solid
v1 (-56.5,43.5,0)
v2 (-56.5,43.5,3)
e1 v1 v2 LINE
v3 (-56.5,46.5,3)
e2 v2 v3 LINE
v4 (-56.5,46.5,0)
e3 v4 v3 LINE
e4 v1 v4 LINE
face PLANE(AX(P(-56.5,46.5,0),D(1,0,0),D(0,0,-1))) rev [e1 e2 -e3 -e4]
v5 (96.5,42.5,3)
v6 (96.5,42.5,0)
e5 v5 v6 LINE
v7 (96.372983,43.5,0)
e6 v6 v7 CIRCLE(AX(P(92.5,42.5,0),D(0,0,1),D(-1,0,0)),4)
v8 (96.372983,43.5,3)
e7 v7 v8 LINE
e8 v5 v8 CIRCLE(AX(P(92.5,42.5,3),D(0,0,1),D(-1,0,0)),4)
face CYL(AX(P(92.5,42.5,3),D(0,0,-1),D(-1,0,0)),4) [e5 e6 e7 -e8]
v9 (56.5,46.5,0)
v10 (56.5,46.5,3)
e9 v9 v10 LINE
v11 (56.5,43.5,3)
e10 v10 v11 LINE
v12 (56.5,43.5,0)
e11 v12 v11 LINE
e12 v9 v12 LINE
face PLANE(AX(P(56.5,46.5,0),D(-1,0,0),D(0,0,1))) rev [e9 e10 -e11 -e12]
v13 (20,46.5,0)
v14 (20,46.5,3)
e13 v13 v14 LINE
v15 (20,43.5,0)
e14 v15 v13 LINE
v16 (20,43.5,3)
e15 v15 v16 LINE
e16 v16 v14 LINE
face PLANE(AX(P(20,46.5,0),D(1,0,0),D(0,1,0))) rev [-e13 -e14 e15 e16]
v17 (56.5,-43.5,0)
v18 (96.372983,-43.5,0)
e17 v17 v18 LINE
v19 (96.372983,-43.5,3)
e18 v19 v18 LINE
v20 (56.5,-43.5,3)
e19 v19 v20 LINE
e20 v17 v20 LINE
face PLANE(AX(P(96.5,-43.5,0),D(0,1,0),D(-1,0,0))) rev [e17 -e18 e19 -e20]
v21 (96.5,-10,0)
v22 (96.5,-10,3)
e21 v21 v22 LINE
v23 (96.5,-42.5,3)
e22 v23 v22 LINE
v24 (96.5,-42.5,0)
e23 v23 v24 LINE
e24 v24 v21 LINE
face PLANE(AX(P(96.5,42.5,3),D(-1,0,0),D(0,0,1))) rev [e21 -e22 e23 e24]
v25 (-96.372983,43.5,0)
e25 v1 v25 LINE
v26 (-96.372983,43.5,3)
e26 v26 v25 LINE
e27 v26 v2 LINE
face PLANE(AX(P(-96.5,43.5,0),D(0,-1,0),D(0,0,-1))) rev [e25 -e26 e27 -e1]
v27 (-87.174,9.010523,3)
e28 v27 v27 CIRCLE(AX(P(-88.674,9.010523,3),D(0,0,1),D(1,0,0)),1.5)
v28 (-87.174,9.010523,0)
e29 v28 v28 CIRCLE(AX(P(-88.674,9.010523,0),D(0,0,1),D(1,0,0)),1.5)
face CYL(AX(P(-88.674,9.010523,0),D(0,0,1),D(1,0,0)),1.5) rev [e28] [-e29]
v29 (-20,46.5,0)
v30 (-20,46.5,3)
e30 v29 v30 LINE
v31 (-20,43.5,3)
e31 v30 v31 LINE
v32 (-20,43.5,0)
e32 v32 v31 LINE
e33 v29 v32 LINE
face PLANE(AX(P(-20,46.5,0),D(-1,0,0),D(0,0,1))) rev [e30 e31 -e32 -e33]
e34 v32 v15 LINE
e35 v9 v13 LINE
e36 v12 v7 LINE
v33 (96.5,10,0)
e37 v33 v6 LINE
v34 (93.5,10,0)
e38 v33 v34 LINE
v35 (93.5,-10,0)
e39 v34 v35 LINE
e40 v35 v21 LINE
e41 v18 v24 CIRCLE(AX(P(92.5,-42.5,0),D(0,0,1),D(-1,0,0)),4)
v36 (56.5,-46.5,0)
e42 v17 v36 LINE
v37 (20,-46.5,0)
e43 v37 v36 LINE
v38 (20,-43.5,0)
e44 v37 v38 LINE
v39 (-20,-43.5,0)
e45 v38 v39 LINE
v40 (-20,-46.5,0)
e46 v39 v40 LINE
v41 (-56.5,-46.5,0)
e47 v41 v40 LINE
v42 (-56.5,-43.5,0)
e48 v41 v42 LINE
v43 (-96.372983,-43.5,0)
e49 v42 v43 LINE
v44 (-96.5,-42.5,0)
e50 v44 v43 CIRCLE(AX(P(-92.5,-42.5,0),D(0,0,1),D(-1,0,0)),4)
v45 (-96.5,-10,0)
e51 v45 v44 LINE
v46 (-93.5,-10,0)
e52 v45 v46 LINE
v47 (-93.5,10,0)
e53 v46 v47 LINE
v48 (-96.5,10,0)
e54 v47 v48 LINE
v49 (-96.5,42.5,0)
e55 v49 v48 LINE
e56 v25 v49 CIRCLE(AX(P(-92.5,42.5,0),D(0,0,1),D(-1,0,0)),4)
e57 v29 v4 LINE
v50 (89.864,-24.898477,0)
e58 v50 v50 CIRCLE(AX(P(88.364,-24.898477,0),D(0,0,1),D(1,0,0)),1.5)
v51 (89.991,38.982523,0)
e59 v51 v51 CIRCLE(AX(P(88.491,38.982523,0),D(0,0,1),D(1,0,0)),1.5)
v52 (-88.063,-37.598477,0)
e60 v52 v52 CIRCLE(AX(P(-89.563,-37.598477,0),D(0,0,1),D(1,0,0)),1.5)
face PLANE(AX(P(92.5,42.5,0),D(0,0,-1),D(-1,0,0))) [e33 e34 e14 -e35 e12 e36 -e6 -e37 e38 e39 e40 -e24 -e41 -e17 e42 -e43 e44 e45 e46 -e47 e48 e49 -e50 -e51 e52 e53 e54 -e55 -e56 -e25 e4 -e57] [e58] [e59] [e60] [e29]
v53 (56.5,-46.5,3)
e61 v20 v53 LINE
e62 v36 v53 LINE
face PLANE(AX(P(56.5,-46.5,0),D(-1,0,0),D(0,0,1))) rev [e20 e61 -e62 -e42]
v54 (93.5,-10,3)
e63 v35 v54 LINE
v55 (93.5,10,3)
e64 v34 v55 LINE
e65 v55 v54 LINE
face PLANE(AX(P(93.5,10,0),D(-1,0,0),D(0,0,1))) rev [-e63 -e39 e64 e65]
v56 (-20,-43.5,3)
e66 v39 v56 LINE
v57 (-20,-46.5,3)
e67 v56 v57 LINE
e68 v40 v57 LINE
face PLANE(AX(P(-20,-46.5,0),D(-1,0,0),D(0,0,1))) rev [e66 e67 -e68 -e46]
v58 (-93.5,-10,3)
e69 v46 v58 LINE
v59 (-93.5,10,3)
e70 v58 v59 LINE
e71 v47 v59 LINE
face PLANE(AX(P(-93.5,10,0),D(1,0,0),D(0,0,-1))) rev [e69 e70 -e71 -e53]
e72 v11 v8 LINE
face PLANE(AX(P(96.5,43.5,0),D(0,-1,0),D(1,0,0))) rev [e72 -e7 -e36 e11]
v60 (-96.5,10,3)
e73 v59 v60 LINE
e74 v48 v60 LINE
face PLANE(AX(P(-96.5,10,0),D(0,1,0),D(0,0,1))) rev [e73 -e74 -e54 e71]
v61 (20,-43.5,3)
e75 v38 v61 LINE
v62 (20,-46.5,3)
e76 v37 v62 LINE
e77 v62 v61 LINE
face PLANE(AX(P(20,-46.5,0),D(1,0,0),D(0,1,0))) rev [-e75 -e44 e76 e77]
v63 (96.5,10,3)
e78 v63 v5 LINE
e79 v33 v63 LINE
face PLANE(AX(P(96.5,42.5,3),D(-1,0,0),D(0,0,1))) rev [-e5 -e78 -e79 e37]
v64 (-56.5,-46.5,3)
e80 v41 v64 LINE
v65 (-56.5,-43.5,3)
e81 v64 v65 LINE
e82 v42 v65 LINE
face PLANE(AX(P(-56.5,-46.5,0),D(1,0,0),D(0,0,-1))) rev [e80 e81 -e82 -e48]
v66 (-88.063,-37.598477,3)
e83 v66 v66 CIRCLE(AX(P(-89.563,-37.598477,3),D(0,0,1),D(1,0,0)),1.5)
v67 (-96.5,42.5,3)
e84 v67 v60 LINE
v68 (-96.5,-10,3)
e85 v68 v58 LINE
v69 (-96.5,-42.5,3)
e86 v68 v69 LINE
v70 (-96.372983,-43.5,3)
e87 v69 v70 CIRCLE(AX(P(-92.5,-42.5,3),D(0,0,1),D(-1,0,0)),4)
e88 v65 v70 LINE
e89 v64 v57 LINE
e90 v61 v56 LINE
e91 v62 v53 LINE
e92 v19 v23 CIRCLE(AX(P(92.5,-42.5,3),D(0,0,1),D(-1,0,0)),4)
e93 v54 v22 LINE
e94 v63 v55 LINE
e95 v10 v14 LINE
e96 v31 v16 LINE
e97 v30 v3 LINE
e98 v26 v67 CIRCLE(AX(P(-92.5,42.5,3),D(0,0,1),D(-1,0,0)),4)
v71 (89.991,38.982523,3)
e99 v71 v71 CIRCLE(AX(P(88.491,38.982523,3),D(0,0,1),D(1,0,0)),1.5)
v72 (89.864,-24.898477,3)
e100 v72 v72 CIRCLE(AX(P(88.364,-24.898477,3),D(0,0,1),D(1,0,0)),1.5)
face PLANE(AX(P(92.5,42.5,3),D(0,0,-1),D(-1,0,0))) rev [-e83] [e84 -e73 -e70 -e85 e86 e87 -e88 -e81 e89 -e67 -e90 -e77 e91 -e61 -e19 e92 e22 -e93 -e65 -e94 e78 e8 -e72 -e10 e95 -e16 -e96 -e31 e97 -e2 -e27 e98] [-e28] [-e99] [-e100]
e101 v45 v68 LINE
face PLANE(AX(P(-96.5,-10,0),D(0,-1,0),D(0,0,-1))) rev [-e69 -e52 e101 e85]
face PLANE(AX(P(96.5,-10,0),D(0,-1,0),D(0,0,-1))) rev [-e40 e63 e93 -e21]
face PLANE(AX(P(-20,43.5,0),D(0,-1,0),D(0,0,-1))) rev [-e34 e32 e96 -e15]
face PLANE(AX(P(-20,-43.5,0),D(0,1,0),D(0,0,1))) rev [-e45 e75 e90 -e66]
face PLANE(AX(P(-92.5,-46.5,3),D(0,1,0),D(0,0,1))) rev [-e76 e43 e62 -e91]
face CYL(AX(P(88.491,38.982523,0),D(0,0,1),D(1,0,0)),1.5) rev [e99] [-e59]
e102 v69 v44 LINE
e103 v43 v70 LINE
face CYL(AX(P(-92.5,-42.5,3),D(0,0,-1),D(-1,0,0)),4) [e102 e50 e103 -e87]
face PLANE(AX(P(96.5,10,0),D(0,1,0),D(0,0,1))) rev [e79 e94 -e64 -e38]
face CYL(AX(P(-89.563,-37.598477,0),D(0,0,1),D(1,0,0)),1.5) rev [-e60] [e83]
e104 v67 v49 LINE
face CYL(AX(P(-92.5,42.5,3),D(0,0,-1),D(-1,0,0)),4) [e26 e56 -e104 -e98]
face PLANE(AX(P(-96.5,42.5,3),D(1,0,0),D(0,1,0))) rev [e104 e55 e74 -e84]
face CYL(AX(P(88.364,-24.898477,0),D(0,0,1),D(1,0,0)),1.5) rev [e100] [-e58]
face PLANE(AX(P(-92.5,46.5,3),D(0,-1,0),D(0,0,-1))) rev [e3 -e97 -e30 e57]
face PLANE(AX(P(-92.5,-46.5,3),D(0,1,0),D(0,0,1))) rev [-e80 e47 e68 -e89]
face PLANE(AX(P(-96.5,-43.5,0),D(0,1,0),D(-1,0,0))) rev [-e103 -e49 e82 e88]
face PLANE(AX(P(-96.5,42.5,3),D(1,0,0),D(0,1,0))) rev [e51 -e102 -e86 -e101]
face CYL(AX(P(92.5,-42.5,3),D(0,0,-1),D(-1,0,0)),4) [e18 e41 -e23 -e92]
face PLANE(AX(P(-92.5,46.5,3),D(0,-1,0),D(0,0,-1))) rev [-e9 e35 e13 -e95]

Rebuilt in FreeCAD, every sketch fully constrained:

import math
import FreeCAD as App
import Part
import Sketcher
from FreeCAD import Vector
Q = App.Units.Quantity


def add_polygon(sketch, points):
    """Adds a closed chain of lines whose ends are joined by coincident constraints."""
    first, n = sketch.GeometryCount, len(points)
    for a, b in zip(points, points[1:] + points[:1]):
        sketch.addGeometry(Part.LineSegment(App.Vector(*a, 0), App.Vector(*b, 0)), False)
    for i in range(n):
        sketch.addConstraint(Sketcher.Constraint("Coincident", first + i, 2, first + (i + 1) % n, 1))

doc = App.newDocument("Part")
params = doc.addObject("Spreadsheet::Sheet", "Params")
for row, (alias, value) in enumerate([
    ("sketch1_radius", "4 mm"),
    ("sketch1_width", "185 mm"),
    ("sketch1_height", "85 mm"),
    ("pad1_length", "3 mm"),
    ("sketch2_diameter", "3 mm"),
    ("sketch2_width", "3 mm"),
    ("sketch2_width2", "40 mm"),
    ("sketch2_height", "20 mm"),
    ("pocket1_length", "3 mm"),
], start=1):
    params.set(f"A{row}", alias)
    params.set(f"B{row}", "=" + value)
    params.setAlias(f"B{row}", alias)

body = doc.addObject("PartDesign::Body", "Body")

# Sketch on XY plane
sketch1 = doc.addObject("Sketcher::SketchObject", "Sketch")
body.addObject(sketch1)
sketch1.AttachmentSupport = (doc.XY_Plane, [""])
sketch1.MapMode = "FlatFace"
sketch1.addGeometry([
    Part.LineSegment(Vector(92.5, 46.5, 0), Vector(-92.5, 46.5, 0)),  # 0
    Part.ArcOfCircle(Part.Circle(Vector(-92.5, 42.5, 0), Vector(0, 0, 1), 4), math.radians(90), math.radians(180)),  # 1
    Part.LineSegment(Vector(-96.5, 42.5, 0), Vector(-96.5, -42.5, 0)),  # 2
    Part.ArcOfCircle(Part.Circle(Vector(-92.5, -42.5, 0), Vector(0, 0, 1), 4), math.radians(180), math.radians(270)),  # 3
    Part.LineSegment(Vector(-92.5, -46.5, 0), Vector(92.5, -46.5, 0)),  # 4
    Part.ArcOfCircle(Part.Circle(Vector(92.5, -42.5, 0), Vector(0, 0, 1), 4), math.radians(-90), math.radians(0)),  # 5
    Part.LineSegment(Vector(96.5, -42.5, 0), Vector(96.5, 42.5, 0)),  # 6
    Part.ArcOfCircle(Part.Circle(Vector(92.5, 42.5, 0), Vector(0, 0, 1), 4), math.radians(0), math.radians(90)),  # 7
], False)
sketch1.addConstraint([
    Sketcher.Constraint("Tangent", 0, 2, 1, 1),
    Sketcher.Constraint("Tangent", 1, 2, 2, 1),
    Sketcher.Constraint("Tangent", 2, 2, 3, 1),
    Sketcher.Constraint("Tangent", 3, 2, 4, 1),
    Sketcher.Constraint("Tangent", 4, 2, 5, 1),
    Sketcher.Constraint("Tangent", 5, 2, 6, 1),
    Sketcher.Constraint("Tangent", 6, 2, 7, 1),
    Sketcher.Constraint("Tangent", 7, 2, 0, 1),
    Sketcher.Constraint("Horizontal", 0),
    Sketcher.Constraint("Vertical", 2),
    Sketcher.Constraint("Horizontal", 4),
    Sketcher.Constraint("Vertical", 6),
    Sketcher.Constraint("Equal", 1, 3),
    Sketcher.Constraint("Equal", 3, 5),
    Sketcher.Constraint("Equal", 5, 7),
    Sketcher.Constraint("Symmetric", 1, 3, 5, 3, -1, 1),
    Sketcher.Constraint("Radius", 1, Q("4 mm")),
    Sketcher.Constraint("DistanceX", 0, 2, 0, 1, Q("185 mm")),
    Sketcher.Constraint("DistanceY", 2, 2, 2, 1, Q("85 mm")),
])
sketch1.setExpression("Constraints[16]", "Params.sketch1_radius")
sketch1.setExpression("Constraints[17]", "Params.sketch1_width")
sketch1.setExpression("Constraints[18]", "Params.sketch1_height")
pad1 = doc.addObject("PartDesign::Pad", "Pad")
body.addObject(pad1)
pad1.Profile = sketch1
pad1.setExpression("Length", "Params.pad1_length")

# Sketch on XY plane
sketch2 = doc.addObject("Sketcher::SketchObject", "Sketch001")
body.addObject(sketch2)
sketch2.AttachmentSupport = (doc.XY_Plane, [""])
sketch2.MapMode = "FlatFace"
sketch2.AttachmentOffset = App.Placement(Vector(0, 0, 3), App.Rotation())
sketch2.addGeometry(Part.Circle(Vector(-88.7, 9, 0), Vector(0, 0, 1), 1.5), False)  # 0
sketch2.addGeometry(Part.Circle(Vector(-89.6, -37.6, 0), Vector(0, 0, 1), 1.5), False)  # 1
sketch2.addGeometry(Part.Circle(Vector(88.4, -24.9, 0), Vector(0, 0, 1), 1.5), False)  # 2
sketch2.addGeometry(Part.Circle(Vector(88.5, 39, 0), Vector(0, 0, 1), 1.5), False)  # 3
add_polygon(sketch2, [(-96.5, 10), (-96.5, -10), (-93.5, -10), (-93.5, 10)])  # lines 4-7
add_polygon(sketch2, [(93.5, 10), (93.5, -10), (96.5, -10), (96.5, 10)])  # lines 8-11
add_polygon(sketch2, [(56.5, 46.5), (56.5, 43.5), (96.5, 43.5), (96.5, 46.5)])  # lines 12-15
add_polygon(sketch2, [(-96.5, 46.5), (-96.5, 43.5), (-56.5, 43.5), (-56.5, 46.5)])  # lines 16-19
add_polygon(sketch2, [(56.5, -43.5), (56.5, -46.5), (96.5, -46.5), (96.5, -43.5)])  # lines 20-23
add_polygon(sketch2, [(-20, 46.5), (-20, 43.5), (20, 43.5), (20, 46.5)])  # lines 24-27
add_polygon(sketch2, [(-20, -43.5), (-20, -46.5), (20, -46.5), (20, -43.5)])  # lines 28-31
add_polygon(sketch2, [(-96.5, -43.5), (-96.5, -46.5), (-56.5, -46.5), (-56.5, -43.5)])  # lines 32-35
sketch2.addConstraint([
    Sketcher.Constraint("Vertical", 4),
    Sketcher.Constraint("Horizontal", 5),
    Sketcher.Constraint("Vertical", 6),
    Sketcher.Constraint("Horizontal", 7),
    Sketcher.Constraint("Vertical", 8),
    Sketcher.Constraint("Horizontal", 9),
    Sketcher.Constraint("Vertical", 10),
    Sketcher.Constraint("Horizontal", 11),
    Sketcher.Constraint("Vertical", 12),
    Sketcher.Constraint("Horizontal", 13),
    Sketcher.Constraint("Vertical", 14),
    Sketcher.Constraint("Horizontal", 15),
    Sketcher.Constraint("Vertical", 16),
    Sketcher.Constraint("Horizontal", 17),
    Sketcher.Constraint("Vertical", 18),
    Sketcher.Constraint("Horizontal", 19),
    Sketcher.Constraint("Vertical", 20),
    Sketcher.Constraint("Horizontal", 21),
    Sketcher.Constraint("Vertical", 22),
    Sketcher.Constraint("Horizontal", 23),
    Sketcher.Constraint("Vertical", 24),
    Sketcher.Constraint("Horizontal", 25),
    Sketcher.Constraint("Vertical", 26),
    Sketcher.Constraint("Horizontal", 27),
    Sketcher.Constraint("Vertical", 28),
    Sketcher.Constraint("Horizontal", 29),
    Sketcher.Constraint("Vertical", 30),
    Sketcher.Constraint("Horizontal", 31),
    Sketcher.Constraint("Vertical", 32),
    Sketcher.Constraint("Horizontal", 33),
    Sketcher.Constraint("Vertical", 34),
    Sketcher.Constraint("Horizontal", 35),
    Sketcher.Constraint("Equal", 0, 1),
    Sketcher.Constraint("Equal", 1, 2),
    Sketcher.Constraint("Equal", 2, 3),
    Sketcher.Constraint("Symmetric", 6, 2, 8, 2, -1, 1),
    Sketcher.Constraint("Symmetric", 4, 2, 10, 2, -1, 1),
    Sketcher.Constraint("Symmetric", 18, 2, 20, 2, -1, 1),
    Sketcher.Constraint("Symmetric", 16, 2, 22, 2, -1, 1),
    Sketcher.Constraint("Symmetric", 26, 2, 28, 2, -1, 1),
    Sketcher.Constraint("Symmetric", 24, 2, 30, 2, -1, 1),
    Sketcher.Constraint("Symmetric", 14, 2, 32, 2, -1, 1),
    Sketcher.Constraint("Symmetric", 12, 2, 34, 2, -1, 1),
    Sketcher.Constraint("Symmetric", 13, 2, 16, 2, -2),
    Sketcher.Constraint("Symmetric", 15, 2, 18, 2, -2),
    Sketcher.Constraint("Horizontal", 5, 2, 8, 2),
    Sketcher.Constraint("Horizontal", 17, 2, 24, 2),
    Sketcher.Constraint("Horizontal", 19, 2, 26, 2),
    Sketcher.Constraint("Vertical", 10, 2, 13, 2),
    Sketcher.Constraint("Vertical", 27, 2, 28, 2),
    Sketcher.Constraint("Equal", 23, 25),
    Sketcher.Constraint("Equal", 11, 12),
    Sketcher.Constraint("Diameter", 0, Q("3 mm")),
    Sketcher.Constraint("DistanceX", 5, 1, 5, 2, Q("3 mm")),
    Sketcher.Constraint("DistanceX", 13, 1, 13, 2, Q("40 mm")),
    Sketcher.Constraint("DistanceY", 4, 2, 4, 1, Q("20 mm")),
    Sketcher.Constraint("DistanceX", 5, 2, 8, 2, Q("187 mm")),
    Sketcher.Constraint("DistanceY", -1, 1, 12, 2, Q("43.5 mm")),
    Sketcher.Constraint("DistanceY", 1, 3, 2, 3, Q("12.7 mm")),
    Sketcher.Constraint("DistanceX", 0, 3, -1, 1, Q("88.674 mm")),
    Sketcher.Constraint("DistanceX", 1, 3, -1, 1, Q("89.563 mm")),
    Sketcher.Constraint("DistanceX", -1, 1, 2, 3, Q("88.364 mm")),
    Sketcher.Constraint("DistanceX", -1, 1, 3, 3, Q("88.491 mm")),
    Sketcher.Constraint("DistanceY", 1, 3, 0, 3, Q("46.609 mm")),
    Sketcher.Constraint("DistanceY", 2, 3, 3, 3, Q("63.881 mm")),
    Sketcher.Constraint("DistanceY", -1, 1, 0, 3, Q("9.010523 mm")),
])
sketch2.setExpression("Constraints[84]", "Params.sketch2_diameter")
sketch2.setExpression("Constraints[85]", "Params.sketch2_width")
sketch2.setExpression("Constraints[86]", "Params.sketch2_width2")
sketch2.setExpression("Constraints[87]", "Params.sketch2_height")
pocket1 = doc.addObject("PartDesign::Pocket", "Pocket")
body.addObject(pocket1)
pocket1.Profile = sketch2
pocket1.setExpression("Length", "Params.pocket1_length")

doc.recompute()
